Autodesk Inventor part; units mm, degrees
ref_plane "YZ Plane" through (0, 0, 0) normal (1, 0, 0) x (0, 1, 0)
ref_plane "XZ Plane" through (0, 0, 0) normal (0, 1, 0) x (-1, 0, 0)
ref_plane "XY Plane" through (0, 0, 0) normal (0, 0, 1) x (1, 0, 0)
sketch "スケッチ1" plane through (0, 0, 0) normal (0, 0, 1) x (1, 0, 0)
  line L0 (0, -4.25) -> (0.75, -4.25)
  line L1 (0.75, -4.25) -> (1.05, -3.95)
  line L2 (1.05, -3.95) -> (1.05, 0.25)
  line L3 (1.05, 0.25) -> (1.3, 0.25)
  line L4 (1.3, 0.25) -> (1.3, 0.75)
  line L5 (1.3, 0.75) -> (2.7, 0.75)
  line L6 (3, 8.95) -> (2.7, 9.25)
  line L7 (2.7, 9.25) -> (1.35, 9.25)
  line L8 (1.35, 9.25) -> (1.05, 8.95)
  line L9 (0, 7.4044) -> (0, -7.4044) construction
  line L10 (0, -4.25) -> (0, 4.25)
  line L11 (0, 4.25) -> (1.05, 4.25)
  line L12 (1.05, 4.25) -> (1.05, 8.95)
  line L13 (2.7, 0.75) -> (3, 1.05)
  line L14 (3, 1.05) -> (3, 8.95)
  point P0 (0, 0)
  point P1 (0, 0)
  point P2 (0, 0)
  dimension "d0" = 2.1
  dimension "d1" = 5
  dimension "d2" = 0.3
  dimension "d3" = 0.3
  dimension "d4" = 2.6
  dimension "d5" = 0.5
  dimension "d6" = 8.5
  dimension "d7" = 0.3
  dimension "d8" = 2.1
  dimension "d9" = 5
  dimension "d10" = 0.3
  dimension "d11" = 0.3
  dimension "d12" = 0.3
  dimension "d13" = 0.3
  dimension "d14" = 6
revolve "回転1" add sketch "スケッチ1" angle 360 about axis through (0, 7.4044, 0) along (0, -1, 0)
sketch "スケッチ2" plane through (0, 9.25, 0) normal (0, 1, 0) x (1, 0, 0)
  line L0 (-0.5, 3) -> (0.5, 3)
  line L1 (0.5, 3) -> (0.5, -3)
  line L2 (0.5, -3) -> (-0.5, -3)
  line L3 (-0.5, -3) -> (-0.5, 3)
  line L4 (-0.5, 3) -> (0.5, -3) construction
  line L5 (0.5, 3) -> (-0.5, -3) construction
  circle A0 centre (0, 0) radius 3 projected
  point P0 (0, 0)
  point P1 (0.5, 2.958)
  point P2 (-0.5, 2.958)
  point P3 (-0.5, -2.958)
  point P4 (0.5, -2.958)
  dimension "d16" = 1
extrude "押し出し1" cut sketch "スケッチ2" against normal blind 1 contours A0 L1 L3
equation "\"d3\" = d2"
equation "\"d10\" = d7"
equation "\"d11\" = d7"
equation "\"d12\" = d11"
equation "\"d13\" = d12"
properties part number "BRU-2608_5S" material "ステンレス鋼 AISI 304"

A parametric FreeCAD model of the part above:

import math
import FreeCAD as App
import Part
import Sketcher
from FreeCAD import Vector

doc = App.newDocument("Part")
body = doc.addObject("PartDesign::Body", "Body")

# Sketch on XY plane
sketch1 = doc.addObject("Sketcher::SketchObject", "Sketch")
body.addObject(sketch1)
sketch1.AttachmentSupport = (doc.XY_Plane, [""])
sketch1.MapMode = "FlatFace"
sketch1.addGeometry(Part.LineSegment(Vector(0, 4.25, 0), Vector(0, -4.25, 0)), False)
sketch1.addGeometry(Part.LineSegment(Vector(0, -4.25, 0), Vector(0.75, -4.25, 0)), False)
sketch1.addGeometry(Part.LineSegment(Vector(0.75, -4.25, 0), Vector(1.05, -3.95, 0)), False)
sketch1.addGeometry(Part.LineSegment(Vector(1.05, -3.95, 0), Vector(1.05, 0.25, 0)), False)
sketch1.addGeometry(Part.LineSegment(Vector(1.05, 0.25, 0), Vector(1.3, 0.25, 0)), False)
sketch1.addGeometry(Part.LineSegment(Vector(1.3, 0.25, 0), Vector(1.3, 0.75, 0)), False)
sketch1.addGeometry(Part.LineSegment(Vector(1.3, 0.75, 0), Vector(2.7, 0.75, 0)), False)
sketch1.addGeometry(Part.LineSegment(Vector(2.7, 0.75, 0), Vector(3, 1.05, 0)), False)
sketch1.addGeometry(Part.LineSegment(Vector(3, 1.05, 0), Vector(3, 8.95, 0)), False)
sketch1.addGeometry(Part.LineSegment(Vector(3, 8.95, 0), Vector(2.7, 9.25, 0)), False)
sketch1.addGeometry(Part.LineSegment(Vector(2.7, 9.25, 0), Vector(1.35, 9.25, 0)), False)
sketch1.addGeometry(Part.LineSegment(Vector(1.35, 9.25, 0), Vector(1.05, 8.95, 0)), False)
sketch1.addGeometry(Part.LineSegment(Vector(1.05, 8.95, 0), Vector(1.05, 4.25, 0)), False)
sketch1.addGeometry(Part.LineSegment(Vector(1.05, 4.25, 0), Vector(0, 4.25, 0)), False)
sketch1.addConstraint(Sketcher.Constraint("Coincident", 0, 2, 1, 1))
sketch1.addConstraint(Sketcher.Constraint("Coincident", 1, 2, 2, 1))
sketch1.addConstraint(Sketcher.Constraint("Coincident", 2, 2, 3, 1))
sketch1.addConstraint(Sketcher.Constraint("Coincident", 3, 2, 4, 1))
sketch1.addConstraint(Sketcher.Constraint("Coincident", 4, 2, 5, 1))
sketch1.addConstraint(Sketcher.Constraint("Coincident", 5, 2, 6, 1))
sketch1.addConstraint(Sketcher.Constraint("Coincident", 6, 2, 7, 1))
sketch1.addConstraint(Sketcher.Constraint("Coincident", 7, 2, 8, 1))
sketch1.addConstraint(Sketcher.Constraint("Coincident", 8, 2, 9, 1))
sketch1.addConstraint(Sketcher.Constraint("Coincident", 9, 2, 10, 1))
sketch1.addConstraint(Sketcher.Constraint("Coincident", 10, 2, 11, 1))
sketch1.addConstraint(Sketcher.Constraint("Coincident", 11, 2, 12, 1))
sketch1.addConstraint(Sketcher.Constraint("Coincident", 12, 2, 13, 1))
sketch1.addConstraint(Sketcher.Constraint("Coincident", 13, 2, 0, 1))
sketch1.addConstraint(Sketcher.Constraint("Vertical", 0))
sketch1.addConstraint(Sketcher.Constraint("Horizontal", 1))
sketch1.addConstraint(Sketcher.Constraint("Vertical", 3))
sketch1.addConstraint(Sketcher.Constraint("Horizontal", 4))
sketch1.addConstraint(Sketcher.Constraint("Vertical", 5))
sketch1.addConstraint(Sketcher.Constraint("Horizontal", 6))
sketch1.addConstraint(Sketcher.Constraint("Vertical", 8))
sketch1.addConstraint(Sketcher.Constraint("Horizontal", 10))
sketch1.addConstraint(Sketcher.Constraint("Vertical", 12))
sketch1.addConstraint(Sketcher.Constraint("Horizontal", 13))
sketch1.addConstraint(Sketcher.Constraint("Symmetric", 0, 2, 13, 2, -1, 1))
sketch1.addConstraint(Sketcher.Constraint("Parallel", 2, 7))
sketch1.addConstraint(Sketcher.Constraint("Perpendicular", 7, 9))
sketch1.addConstraint(Sketcher.Constraint("Perpendicular", 9, 11))
sketch1.addConstraint(Sketcher.Constraint("Horizontal", 8, 2, 11, 2))
sketch1.addConstraint(Sketcher.Constraint("Vertical", 6, 2, 9, 2))
sketch1.addConstraint(Sketcher.Constraint("Vertical", 3, 2, 11, 2))
sketch1.addConstraint(Sketcher.Constraint("Equal", 2, 7))
sketch1.addConstraint(Sketcher.Constraint("Equal", 7, 9))
sketch1.addConstraint(Sketcher.Constraint("DistanceY", 0, 2, 0, 1, 8.5))
sketch1.addConstraint(Sketcher.Constraint("DistanceY", 5, 1, 5, 2, 0.5))
sketch1.addConstraint(Sketcher.Constraint("DistanceY", 1, 2, 5, 2, 5.0))
sketch1.addConstraint(Sketcher.Constraint("DistanceX", 1, 2, 2, 2, 0.3))
sketch1.addConstraint(Sketcher.Constraint("DistanceY", 6, 2, 9, 2, 8.5))
sketch1.addConstraint(Sketcher.Constraint("DistanceX", 6, 1, 6, 2, 1.4))
sketch1.addConstraint(Sketcher.Constraint("DistanceX", -1, 1, 7, 2, 3.0))
sketch1.addConstraint(Sketcher.Constraint("DistanceX", 1, 1, 1, 2, 0.75))
revolution = doc.addObject("PartDesign::Revolution", "Revolution")
body.addObject(revolution)
revolution.Profile = sketch1
revolution.ReferenceAxis = (sketch1, ["V_Axis"])
revolution.Angle = 360

# Sketch on XZ plane
sketch2 = doc.addObject("Sketcher::SketchObject", "Sketch001")
body.addObject(sketch2)
sketch2.AttachmentSupport = (doc.XZ_Plane, [""])
sketch2.MapMode = "FlatFace"
sketch2.AttachmentOffset = App.Placement(Vector(0, 0, -9.25), App.Rotation())
sketch2.addGeometry(Part.ArcOfCircle(Part.Circle(Vector(0, 0, 0), Vector(0, 0, 1), 3), math.radians(-99.594068), math.radians(-80.405932)), False)
sketch2.addGeometry(Part.LineSegment(Vector(-0.5, -2.95804, 0), Vector(-0.5, 2.95804, 0)), False)
sketch2.addGeometry(Part.ArcOfCircle(Part.Circle(Vector(0, 0, 0), Vector(0, 0, 1), 3), math.radians(80.405932), math.radians(99.594068)), False)
sketch2.addGeometry(Part.LineSegment(Vector(0.5, 2.95804, 0), Vector(0.5, -2.95804, 0)), False)
sketch2.addConstraint(Sketcher.Constraint("Coincident", 0, 1, 1, 1))
sketch2.addConstraint(Sketcher.Constraint("Coincident", 1, 2, 2, 2))
sketch2.addConstraint(Sketcher.Constraint("Coincident", 2, 1, 3, 1))
sketch2.addConstraint(Sketcher.Constraint("Coincident", 3, 2, 0, 2))
sketch2.addConstraint(Sketcher.Constraint("Vertical", 1))
sketch2.addConstraint(Sketcher.Constraint("Vertical", 3))
sketch2.addConstraint(Sketcher.Constraint("Coincident", 0, 3, -1, 1))
sketch2.addConstraint(Sketcher.Constraint("Coincident", 2, 3, -1, 1))
sketch2.addConstraint(Sketcher.Constraint("Equal", 0, 2))
sketch2.addConstraint(Sketcher.Constraint("Horizontal", 1, 2, 2, 1))
sketch2.addConstraint(Sketcher.Constraint("Radius", 0, 3.0))
sketch2.addConstraint(Sketcher.Constraint("DistanceX", 1, 2, 2, 1, 1.0))
pocket1 = doc.addObject("PartDesign::Pocket", "Pocket")
body.addObject(pocket1)
pocket1.Profile = sketch2
pocket1.Length = 1
pocket1.Reversed = True

doc.recompute()
